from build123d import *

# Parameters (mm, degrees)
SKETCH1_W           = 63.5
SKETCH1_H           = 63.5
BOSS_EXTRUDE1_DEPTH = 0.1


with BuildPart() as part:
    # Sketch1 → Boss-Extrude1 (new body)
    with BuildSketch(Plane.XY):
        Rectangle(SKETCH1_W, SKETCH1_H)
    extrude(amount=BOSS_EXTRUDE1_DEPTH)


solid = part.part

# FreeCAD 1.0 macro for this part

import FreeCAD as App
import Part
import Sketcher
from FreeCAD import Vector

doc = App.newDocument("Part")
body = doc.addObject("PartDesign::Body", "Body")

# Sketch on XY plane
sketch1 = body.newObject("Sketcher::SketchObject", "Sketch")
sketch1.AttachmentSupport = (doc.getObject("XY_Plane"), [""])
sketch1.MapMode = "FlatFace"
sketch1.addGeometry(Part.LineSegment(Vector(-32, 32, 0), Vector(-32, -32, 0)), False)
sketch1.addGeometry(Part.LineSegment(Vector(-32, -32, 0), Vector(32, -32, 0)), False)
sketch1.addGeometry(Part.LineSegment(Vector(32, -32, 0), Vector(32, 32, 0)), False)
sketch1.addGeometry(Part.LineSegment(Vector(32, 32, 0), Vector(-32, 32, 0)), False)
sketch1.addConstraint(Sketcher.Constraint("Coincident", 0, 2, 1, 1))
sketch1.addConstraint(Sketcher.Constraint("Coincident", 1, 2, 2, 1))
sketch1.addConstraint(Sketcher.Constraint("Coincident", 2, 2, 3, 1))
sketch1.addConstraint(Sketcher.Constraint("Coincident", 3, 2, 0, 1))
sketch1.addConstraint(Sketcher.Constraint("Vertical", 0))
sketch1.addConstraint(Sketcher.Constraint("Horizontal", 1))
sketch1.addConstraint(Sketcher.Constraint("Vertical", 2))
sketch1.addConstraint(Sketcher.Constraint("Horizontal", 3))
sketch1.addConstraint(Sketcher.Constraint("Symmetric", 0, 2, 2, 2, -1, 1))
sketch1.addConstraint(Sketcher.Constraint("Equal", 3, 0))
sketch1.addConstraint(Sketcher.Constraint("DistanceX", 1, 1, 1, 2, 63.5))
pad1 = body.newObject("PartDesign::Pad", "Pad")
pad1.Profile = sketch1
pad1.Length = 0.1

doc.recompute()
